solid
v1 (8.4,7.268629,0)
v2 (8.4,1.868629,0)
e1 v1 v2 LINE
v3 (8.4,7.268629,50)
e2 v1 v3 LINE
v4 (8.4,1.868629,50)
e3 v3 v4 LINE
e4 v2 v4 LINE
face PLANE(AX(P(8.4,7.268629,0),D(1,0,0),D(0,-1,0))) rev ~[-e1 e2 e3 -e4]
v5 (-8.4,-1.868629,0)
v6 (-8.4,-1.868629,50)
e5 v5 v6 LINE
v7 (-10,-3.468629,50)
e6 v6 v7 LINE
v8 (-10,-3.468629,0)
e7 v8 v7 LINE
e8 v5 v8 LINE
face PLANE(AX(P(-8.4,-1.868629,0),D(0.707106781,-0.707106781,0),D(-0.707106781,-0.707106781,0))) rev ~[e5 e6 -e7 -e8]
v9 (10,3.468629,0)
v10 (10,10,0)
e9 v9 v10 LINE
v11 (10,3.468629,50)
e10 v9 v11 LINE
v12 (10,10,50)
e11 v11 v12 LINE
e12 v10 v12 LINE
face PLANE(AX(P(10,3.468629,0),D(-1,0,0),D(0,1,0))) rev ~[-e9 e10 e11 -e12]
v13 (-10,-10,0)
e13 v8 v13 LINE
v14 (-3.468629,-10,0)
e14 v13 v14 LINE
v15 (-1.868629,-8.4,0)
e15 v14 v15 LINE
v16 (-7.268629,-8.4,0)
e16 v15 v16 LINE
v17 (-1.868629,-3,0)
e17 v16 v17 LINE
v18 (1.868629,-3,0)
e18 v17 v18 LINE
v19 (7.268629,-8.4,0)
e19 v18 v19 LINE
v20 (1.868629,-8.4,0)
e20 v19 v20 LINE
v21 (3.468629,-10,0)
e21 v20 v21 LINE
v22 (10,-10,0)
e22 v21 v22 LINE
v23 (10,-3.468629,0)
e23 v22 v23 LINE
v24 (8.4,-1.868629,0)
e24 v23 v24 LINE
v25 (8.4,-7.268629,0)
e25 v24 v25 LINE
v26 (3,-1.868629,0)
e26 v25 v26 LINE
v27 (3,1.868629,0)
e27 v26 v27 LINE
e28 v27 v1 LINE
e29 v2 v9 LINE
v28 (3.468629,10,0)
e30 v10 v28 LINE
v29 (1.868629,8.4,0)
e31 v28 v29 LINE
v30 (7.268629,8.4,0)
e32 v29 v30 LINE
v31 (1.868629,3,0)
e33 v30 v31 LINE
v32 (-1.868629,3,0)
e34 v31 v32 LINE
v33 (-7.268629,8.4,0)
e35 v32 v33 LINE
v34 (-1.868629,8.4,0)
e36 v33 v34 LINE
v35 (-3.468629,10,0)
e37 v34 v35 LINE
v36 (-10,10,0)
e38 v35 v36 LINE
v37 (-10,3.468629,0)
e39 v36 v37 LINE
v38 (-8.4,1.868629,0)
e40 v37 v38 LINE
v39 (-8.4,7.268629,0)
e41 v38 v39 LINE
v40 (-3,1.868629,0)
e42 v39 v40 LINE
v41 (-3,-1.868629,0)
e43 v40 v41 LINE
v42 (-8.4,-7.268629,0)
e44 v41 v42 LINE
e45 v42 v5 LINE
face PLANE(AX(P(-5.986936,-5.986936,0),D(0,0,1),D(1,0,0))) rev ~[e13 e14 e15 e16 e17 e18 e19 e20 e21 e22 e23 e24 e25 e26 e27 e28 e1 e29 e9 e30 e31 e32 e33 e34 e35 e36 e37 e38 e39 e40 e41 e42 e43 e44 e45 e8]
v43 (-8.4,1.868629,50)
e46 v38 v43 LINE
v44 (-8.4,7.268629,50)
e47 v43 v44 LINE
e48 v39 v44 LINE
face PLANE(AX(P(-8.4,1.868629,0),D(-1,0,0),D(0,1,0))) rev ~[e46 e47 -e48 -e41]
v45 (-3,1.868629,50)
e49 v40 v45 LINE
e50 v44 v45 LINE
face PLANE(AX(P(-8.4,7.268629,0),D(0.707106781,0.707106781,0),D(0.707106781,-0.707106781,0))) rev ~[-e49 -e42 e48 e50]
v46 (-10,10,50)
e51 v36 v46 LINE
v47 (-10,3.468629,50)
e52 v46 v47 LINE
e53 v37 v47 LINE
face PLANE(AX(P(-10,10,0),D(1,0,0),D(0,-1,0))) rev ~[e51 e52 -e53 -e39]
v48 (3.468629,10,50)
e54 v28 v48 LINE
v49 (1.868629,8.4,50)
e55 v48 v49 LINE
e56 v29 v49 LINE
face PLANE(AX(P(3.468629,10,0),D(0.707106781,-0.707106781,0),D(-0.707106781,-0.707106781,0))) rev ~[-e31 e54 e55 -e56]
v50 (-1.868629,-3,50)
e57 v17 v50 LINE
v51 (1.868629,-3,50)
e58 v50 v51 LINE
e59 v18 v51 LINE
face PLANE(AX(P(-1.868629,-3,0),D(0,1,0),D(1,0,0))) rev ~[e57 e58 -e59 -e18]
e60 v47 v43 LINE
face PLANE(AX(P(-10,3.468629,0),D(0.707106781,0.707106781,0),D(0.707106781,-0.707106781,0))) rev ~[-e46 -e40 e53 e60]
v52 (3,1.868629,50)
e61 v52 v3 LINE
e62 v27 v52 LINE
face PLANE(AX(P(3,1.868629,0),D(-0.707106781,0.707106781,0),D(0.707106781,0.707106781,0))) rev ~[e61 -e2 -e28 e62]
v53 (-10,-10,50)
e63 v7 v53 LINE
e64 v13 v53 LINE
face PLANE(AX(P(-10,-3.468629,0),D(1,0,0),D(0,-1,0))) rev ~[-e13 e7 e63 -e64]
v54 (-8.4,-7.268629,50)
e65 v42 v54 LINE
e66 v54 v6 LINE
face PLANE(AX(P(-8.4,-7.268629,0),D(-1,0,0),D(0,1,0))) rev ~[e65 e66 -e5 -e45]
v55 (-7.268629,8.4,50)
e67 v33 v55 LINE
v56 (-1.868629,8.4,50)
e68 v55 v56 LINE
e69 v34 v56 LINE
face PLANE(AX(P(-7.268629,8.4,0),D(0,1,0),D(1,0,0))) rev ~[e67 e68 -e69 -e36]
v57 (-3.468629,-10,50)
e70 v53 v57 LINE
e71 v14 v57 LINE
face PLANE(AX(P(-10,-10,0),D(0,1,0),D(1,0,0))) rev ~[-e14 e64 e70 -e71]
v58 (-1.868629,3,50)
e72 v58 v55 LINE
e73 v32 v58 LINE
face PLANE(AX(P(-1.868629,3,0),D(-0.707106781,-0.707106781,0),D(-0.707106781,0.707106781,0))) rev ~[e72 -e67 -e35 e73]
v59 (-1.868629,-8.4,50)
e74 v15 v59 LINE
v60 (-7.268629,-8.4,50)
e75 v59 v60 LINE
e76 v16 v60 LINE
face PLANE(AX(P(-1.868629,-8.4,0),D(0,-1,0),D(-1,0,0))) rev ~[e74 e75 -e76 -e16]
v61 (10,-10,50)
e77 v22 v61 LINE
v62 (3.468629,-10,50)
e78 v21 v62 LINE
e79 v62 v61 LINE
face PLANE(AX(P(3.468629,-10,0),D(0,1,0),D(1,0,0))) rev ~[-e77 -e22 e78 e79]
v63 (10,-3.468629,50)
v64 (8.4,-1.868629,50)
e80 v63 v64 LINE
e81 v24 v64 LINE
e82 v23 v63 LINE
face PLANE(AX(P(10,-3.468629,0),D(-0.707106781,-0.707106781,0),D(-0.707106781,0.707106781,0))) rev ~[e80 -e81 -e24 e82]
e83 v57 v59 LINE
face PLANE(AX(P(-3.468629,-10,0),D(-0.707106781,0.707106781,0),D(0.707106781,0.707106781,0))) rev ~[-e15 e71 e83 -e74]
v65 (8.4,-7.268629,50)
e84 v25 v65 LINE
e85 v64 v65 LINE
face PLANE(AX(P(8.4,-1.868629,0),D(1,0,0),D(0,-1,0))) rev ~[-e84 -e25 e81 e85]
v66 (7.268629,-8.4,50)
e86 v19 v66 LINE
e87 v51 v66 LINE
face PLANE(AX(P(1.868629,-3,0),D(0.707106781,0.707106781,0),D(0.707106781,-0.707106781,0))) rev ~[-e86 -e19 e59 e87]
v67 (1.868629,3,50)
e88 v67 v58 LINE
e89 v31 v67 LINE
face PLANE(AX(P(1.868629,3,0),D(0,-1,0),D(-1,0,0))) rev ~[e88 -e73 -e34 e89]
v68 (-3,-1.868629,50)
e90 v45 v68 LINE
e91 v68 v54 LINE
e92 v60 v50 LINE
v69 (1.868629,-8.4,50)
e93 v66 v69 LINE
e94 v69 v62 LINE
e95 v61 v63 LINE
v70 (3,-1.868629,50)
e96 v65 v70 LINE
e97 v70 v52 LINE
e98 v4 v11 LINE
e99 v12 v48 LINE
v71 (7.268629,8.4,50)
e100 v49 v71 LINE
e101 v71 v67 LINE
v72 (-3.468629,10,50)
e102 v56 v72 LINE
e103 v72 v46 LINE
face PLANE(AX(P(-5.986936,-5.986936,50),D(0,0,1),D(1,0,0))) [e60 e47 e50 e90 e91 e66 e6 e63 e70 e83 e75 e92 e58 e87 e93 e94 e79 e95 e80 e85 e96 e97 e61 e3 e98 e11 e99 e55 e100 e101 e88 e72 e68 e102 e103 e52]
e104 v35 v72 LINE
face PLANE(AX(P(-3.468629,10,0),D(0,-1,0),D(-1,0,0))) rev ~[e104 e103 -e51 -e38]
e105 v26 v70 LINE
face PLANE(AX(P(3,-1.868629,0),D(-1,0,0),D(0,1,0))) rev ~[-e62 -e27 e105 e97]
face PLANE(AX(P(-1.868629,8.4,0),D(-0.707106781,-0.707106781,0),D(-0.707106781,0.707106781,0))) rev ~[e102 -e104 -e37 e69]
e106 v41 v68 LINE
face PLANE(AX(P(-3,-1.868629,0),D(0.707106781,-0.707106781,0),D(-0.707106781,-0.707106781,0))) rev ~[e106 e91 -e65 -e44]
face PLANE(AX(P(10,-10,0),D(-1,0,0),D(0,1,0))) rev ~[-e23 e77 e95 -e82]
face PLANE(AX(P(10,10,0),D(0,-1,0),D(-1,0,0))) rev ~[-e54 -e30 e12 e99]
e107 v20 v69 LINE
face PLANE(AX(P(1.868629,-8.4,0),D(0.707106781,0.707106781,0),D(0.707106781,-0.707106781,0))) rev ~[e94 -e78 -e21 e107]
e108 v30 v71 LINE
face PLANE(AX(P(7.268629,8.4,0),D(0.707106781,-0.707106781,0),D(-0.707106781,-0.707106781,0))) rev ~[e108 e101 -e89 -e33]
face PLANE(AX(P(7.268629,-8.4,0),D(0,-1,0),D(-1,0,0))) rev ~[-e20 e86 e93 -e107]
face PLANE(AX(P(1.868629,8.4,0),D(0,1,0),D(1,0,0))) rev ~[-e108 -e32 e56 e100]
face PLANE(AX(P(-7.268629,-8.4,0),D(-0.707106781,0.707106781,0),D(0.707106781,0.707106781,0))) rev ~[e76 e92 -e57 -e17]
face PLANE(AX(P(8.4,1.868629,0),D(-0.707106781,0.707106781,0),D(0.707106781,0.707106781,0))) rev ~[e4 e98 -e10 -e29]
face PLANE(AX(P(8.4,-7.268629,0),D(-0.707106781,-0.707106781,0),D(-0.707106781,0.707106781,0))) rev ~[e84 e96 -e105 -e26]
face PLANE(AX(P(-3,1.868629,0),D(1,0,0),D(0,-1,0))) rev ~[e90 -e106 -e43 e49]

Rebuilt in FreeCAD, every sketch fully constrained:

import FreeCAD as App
import Part
import Sketcher

V = App.Vector


def add_polygon(sketch, points):
    """Adds a closed chain of lines whose ends are joined by coincident constraints."""
    first, n = sketch.GeometryCount, len(points)
    for a, b in zip(points, points[1:] + points[:1]):
        sketch.addGeometry(Part.LineSegment(App.Vector(*a, 0), App.Vector(*b, 0)), False)
    for i in range(n):
        sketch.addConstraint(Sketcher.Constraint("Coincident", first + i, 2, first + (i + 1) % n, 1))

doc = App.newDocument("Part")
body = doc.addObject("PartDesign::Body", "Body")

sketch1 = body.newObject("Sketcher::SketchObject", "Sketch")
sketch1.AttachmentSupport = (doc.getObject("XY_Plane"), [""])
sketch1.MapMode = "FlatFace"
add_polygon(sketch1, [(-10, -10), (-3.5, -10), (-1.9, -8.4), (-7.3, -8.4), (-1.9, -3), (1.9, -3), (7.3, -8.4), (1.9, -8.4), (3.5, -10), (10, -10), (10, -3.5), (8.4, -1.9), (8.4, -7.3), (3, -1.9), (3, 1.9), (8.4, 7.3), (8.4, 1.9), (10, 3.5), (10, 10), (3.5, 10), (1.9, 8.4), (7.3, 8.4), (1.9, 3), (-1.9, 3), (-7.3, 8.4), (-1.9, 8.4), (-3.5, 10), (-10, 10), (-10, 3.5), (-8.4, 1.9), (-8.4, 7.3), (-3, 1.9), (-3, -1.9), (-8.4, -7.3), (-8.4, -1.9), (-10, -3.5)])
sketch1.addConstraint([
    Sketcher.Constraint("Horizontal", 0),
    Sketcher.Constraint("Horizontal", 2),
    Sketcher.Constraint("Horizontal", 4),
    Sketcher.Constraint("Horizontal", 6),
    Sketcher.Constraint("Horizontal", 8),
    Sketcher.Constraint("Vertical", 9),
    Sketcher.Constraint("Vertical", 11),
    Sketcher.Constraint("Vertical", 13),
    Sketcher.Constraint("Vertical", 15),
    Sketcher.Constraint("Vertical", 17),
    Sketcher.Constraint("Horizontal", 18),
    Sketcher.Constraint("Horizontal", 20),
    Sketcher.Constraint("Horizontal", 22),
    Sketcher.Constraint("Horizontal", 24),
    Sketcher.Constraint("Horizontal", 26),
    Sketcher.Constraint("Vertical", 27),
    Sketcher.Constraint("Vertical", 29),
    Sketcher.Constraint("Vertical", 31),
    Sketcher.Constraint("Vertical", 33),
    Sketcher.Constraint("Vertical", 35),
    Sketcher.Constraint("Symmetric", 0, 2, 18, 2, -1, 1),
    Sketcher.Constraint("Symmetric", 1, 2, 19, 2, -1, 1),
    Sketcher.Constraint("Symmetric", 3, 2, 21, 2, -1, 1),
    Sketcher.Constraint("Symmetric", 5, 2, 23, 2, -1, 1),
    Sketcher.Constraint("Symmetric", 7, 2, 25, 2, -1, 1),
    Sketcher.Constraint("Symmetric", 9, 2, 27, 2, -1, 1),
    Sketcher.Constraint("Symmetric", 10, 2, 28, 2, -1, 1),
    Sketcher.Constraint("Symmetric", 12, 2, 30, 2, -1, 1),
    Sketcher.Constraint("Symmetric", 14, 2, 32, 2, -1, 1),
    Sketcher.Constraint("Symmetric", 16, 2, 34, 2, -1, 1),
    Sketcher.Constraint("Symmetric", 2, 2, 5, 2, -2),
    Sketcher.Constraint("Symmetric", 0, 2, 7, 2, -2),
    Sketcher.Constraint("Symmetric", 16, 2, 27, 2, -2),
    Sketcher.Constraint("Symmetric", 15, 2, 28, 2, -2),
    Sketcher.Constraint("Parallel", 1, 3),
    Sketcher.Constraint("Perpendicular", 3, 5),
    Sketcher.Constraint("Parallel", 5, 7),
    Sketcher.Constraint("Parallel", 7, 10),
    Sketcher.Constraint("Parallel", 10, 12),
    Sketcher.Constraint("Perpendicular", 12, 14),
    Sketcher.Constraint("Parallel", 14, 16),
    Sketcher.Constraint("Parallel", 19, 21),
    Sketcher.Constraint("Perpendicular", 21, 23),
    Sketcher.Constraint("Parallel", 23, 25),
    Sketcher.Constraint("Parallel", 28, 30),
    Sketcher.Constraint("Perpendicular", 30, 32),
    Sketcher.Constraint("Parallel", 32, 34),
    Sketcher.Constraint("Horizontal", 10, 2, 12, 2),
    Sketcher.Constraint("Horizontal", 13, 2, 15, 2),
    Sketcher.Constraint("Vertical", 1, 2, 3, 2),
    Sketcher.Constraint("Equal", 26, 9),
    Sketcher.Constraint("Equal", 24, 11),
    Sketcher.Constraint("Equal", 22, 13),
    Sketcher.Constraint("Equal", 7, 10),
    Sketcher.Constraint("DistanceX", 2, 2, 2, 1, 5.4),
    Sketcher.Constraint("DistanceY", 0, 2, -1, 1, 10.0),
    Sketcher.Constraint("DistanceY", 3, 2, -1, 1, 3.0),
    Sketcher.Constraint("DistanceX", 0, 1, 0, 2, 6.531371),
])
pad1 = body.newObject("PartDesign::Pad", "Pad")
pad1.Profile = sketch1
pad1.Length = 50

doc.recompute()
